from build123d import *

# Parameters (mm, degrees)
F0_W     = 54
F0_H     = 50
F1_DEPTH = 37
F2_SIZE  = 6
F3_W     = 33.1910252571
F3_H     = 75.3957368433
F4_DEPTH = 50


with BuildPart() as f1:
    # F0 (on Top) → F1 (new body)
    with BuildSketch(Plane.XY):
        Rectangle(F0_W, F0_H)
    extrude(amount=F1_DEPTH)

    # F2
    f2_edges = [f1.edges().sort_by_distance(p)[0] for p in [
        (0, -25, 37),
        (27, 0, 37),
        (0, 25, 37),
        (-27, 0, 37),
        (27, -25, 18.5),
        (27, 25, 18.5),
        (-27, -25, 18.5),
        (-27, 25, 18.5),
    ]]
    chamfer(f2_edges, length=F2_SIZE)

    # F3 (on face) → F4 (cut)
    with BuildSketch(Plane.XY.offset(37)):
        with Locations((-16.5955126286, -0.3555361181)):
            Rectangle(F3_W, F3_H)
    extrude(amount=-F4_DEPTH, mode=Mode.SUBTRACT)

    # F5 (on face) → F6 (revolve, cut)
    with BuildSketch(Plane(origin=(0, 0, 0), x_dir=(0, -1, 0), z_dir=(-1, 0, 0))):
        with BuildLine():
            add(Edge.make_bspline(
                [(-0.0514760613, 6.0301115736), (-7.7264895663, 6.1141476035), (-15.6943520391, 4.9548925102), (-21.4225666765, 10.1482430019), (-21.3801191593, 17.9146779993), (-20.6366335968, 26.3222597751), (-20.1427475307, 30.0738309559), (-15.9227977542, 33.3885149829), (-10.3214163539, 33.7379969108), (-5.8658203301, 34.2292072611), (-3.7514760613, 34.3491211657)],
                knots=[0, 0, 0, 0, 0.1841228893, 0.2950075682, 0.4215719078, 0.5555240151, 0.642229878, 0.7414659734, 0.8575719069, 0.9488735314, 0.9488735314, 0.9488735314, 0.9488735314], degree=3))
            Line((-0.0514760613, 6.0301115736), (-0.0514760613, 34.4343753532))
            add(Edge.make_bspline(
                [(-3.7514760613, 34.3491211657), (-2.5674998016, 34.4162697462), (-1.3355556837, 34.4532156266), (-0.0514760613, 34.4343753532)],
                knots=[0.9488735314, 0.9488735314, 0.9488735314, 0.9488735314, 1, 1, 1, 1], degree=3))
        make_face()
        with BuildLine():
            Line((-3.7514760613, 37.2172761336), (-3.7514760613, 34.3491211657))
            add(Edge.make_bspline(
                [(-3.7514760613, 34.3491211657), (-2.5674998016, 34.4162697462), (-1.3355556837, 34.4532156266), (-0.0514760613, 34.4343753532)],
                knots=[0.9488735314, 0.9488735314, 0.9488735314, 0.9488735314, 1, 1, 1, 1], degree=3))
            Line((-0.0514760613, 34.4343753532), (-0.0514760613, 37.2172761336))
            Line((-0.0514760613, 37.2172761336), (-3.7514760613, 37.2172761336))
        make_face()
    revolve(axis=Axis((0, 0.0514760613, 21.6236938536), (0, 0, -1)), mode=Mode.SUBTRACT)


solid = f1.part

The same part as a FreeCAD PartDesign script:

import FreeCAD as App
import Part
import Sketcher
Q = App.Units.Quantity


def edges_at(feature, points):
    """Names of the edges that pass closest to the given points."""
    edges = feature.Shape.Edges
    near = lambda p: min(range(len(edges)), key=lambda i: edges[i].distToShape(Part.Vertex(*p))[0])
    return sorted({f"Edge{near(p) + 1}" for p in points})

doc = App.newDocument("Part")
body = doc.addObject("PartDesign::Body", "Body")

# Sketch on XY plane
sketch1 = body.newObject("Sketcher::SketchObject", "Sketch")
sketch1.AttachmentSupport = (doc.getObject("XY_Plane"), [""])
sketch1.MapMode = "FlatFace"
sketch1.addGeometry(Part.LineSegment(App.Vector(-27, 25, 0), App.Vector(-27, -25, 0)), False)
sketch1.addGeometry(Part.LineSegment(App.Vector(-27, -25, 0), App.Vector(27, -25, 0)), False)
sketch1.addGeometry(Part.LineSegment(App.Vector(27, -25, 0), App.Vector(27, 25, 0)), False)
sketch1.addGeometry(Part.LineSegment(App.Vector(27, 25, 0), App.Vector(-27, 25, 0)), False)
sketch1.addConstraint(Sketcher.Constraint("Coincident", 0, 2, 1, 1))
sketch1.addConstraint(Sketcher.Constraint("Coincident", 1, 2, 2, 1))
sketch1.addConstraint(Sketcher.Constraint("Coincident", 2, 2, 3, 1))
sketch1.addConstraint(Sketcher.Constraint("Coincident", 3, 2, 0, 1))
sketch1.addConstraint(Sketcher.Constraint("Vertical", 0))
sketch1.addConstraint(Sketcher.Constraint("Horizontal", 1))
sketch1.addConstraint(Sketcher.Constraint("Vertical", 2))
sketch1.addConstraint(Sketcher.Constraint("Horizontal", 3))
sketch1.addConstraint(Sketcher.Constraint("Symmetric", 0, 2, 2, 2, -1, 1))
sketch1.addConstraint(Sketcher.Constraint("DistanceX", 1, 1, 1, 2, Q("54 mm")))
sketch1.addConstraint(Sketcher.Constraint("DistanceY", 0, 2, 0, 1, Q("50 mm")))
pad1 = body.newObject("PartDesign::Pad", "Pad")
pad1.Profile = sketch1
pad1.Length = 37
doc.recompute()

chamfer = body.newObject("PartDesign::Chamfer", "Chamfer")
chamfer.Base = (pad1, edges_at(pad1, [
    (0, -25, 37),
    (27, 0, 37),
    (0, 25, 37),
    (-27, 0, 37),
    (27, -25, 18.5),
    (27, 25, 18.5),
    (-27, -25, 18.5),
    (-27, 25, 18.5),
]))
chamfer.Size = 6

# Sketch on XY plane
sketch2 = body.newObject("Sketcher::SketchObject", "Sketch001")
sketch2.AttachmentSupport = (doc.getObject("XY_Plane"), [""])
sketch2.MapMode = "FlatFace"
sketch2.AttachmentOffset = App.Placement(App.Vector(0, 0, 37), App.Rotation())
sketch2.addGeometry(Part.LineSegment(App.Vector(-33, 37, 0), App.Vector(-33, -38, 0)), False)
sketch2.addGeometry(Part.LineSegment(App.Vector(-33, -38, 0), App.Vector(0, -38, 0)), False)
sketch2.addGeometry(Part.LineSegment(App.Vector(0, -38, 0), App.Vector(0, 37, 0)), False)
sketch2.addGeometry(Part.LineSegment(App.Vector(0, 37, 0), App.Vector(-33, 37, 0)), False)
sketch2.addConstraint(Sketcher.Constraint("Coincident", 0, 2, 1, 1))
sketch2.addConstraint(Sketcher.Constraint("Coincident", 1, 2, 2, 1))
sketch2.addConstraint(Sketcher.Constraint("Coincident", 2, 2, 3, 1))
sketch2.addConstraint(Sketcher.Constraint("Coincident", 3, 2, 0, 1))
sketch2.addConstraint(Sketcher.Constraint("Vertical", 0))
sketch2.addConstraint(Sketcher.Constraint("Horizontal", 1))
sketch2.addConstraint(Sketcher.Constraint("Vertical", 2))
sketch2.addConstraint(Sketcher.Constraint("Horizontal", 3))
sketch2.addConstraint(Sketcher.Constraint("PointOnObject", 1, 2, -2))
sketch2.addConstraint(Sketcher.Constraint("DistanceX", 1, 1, 1, 2, Q("33.191025 mm")))
sketch2.addConstraint(Sketcher.Constraint("DistanceY", 0, 2, 0, 1, Q("75.395737 mm")))
sketch2.addConstraint(Sketcher.Constraint("DistanceY", 0, 2, -1, 1, Q("38.053405 mm")))
pocket1 = body.newObject("PartDesign::Pocket", "Pocket")
pocket1.Profile = sketch2
pocket1.Length = 50

# Sketch on YZ plane
sketch3 = body.newObject("Sketcher::SketchObject", "Sketch002")
sketch3.AttachmentSupport = (doc.getObject("YZ_Plane"), [""])
sketch3.MapMode = "FlatFace"
sketch3.addGeometry(Part.BSplineCurve([App.Vector(0.051476, 6.030112, 0), App.Vector(7.72649, 6.114148, 0), App.Vector(15.694352, 4.954893, 0), App.Vector(21.422567, 10.148243, 0), App.Vector(21.380119, 17.914678, 0), App.Vector(20.636634, 26.32226, 0), App.Vector(20.142748, 30.073831, 0), App.Vector(15.922798, 33.388515, 0), App.Vector(10.321416, 33.737997, 0), App.Vector(5.86582, 34.229207, 0), App.Vector(3.751476, 34.349121, 0)], [4, 1, 1, 1, 1, 1, 1, 1, 4], [0, 0.184122889, 0.295007568, 0.421571908, 0.555524015, 0.642229878, 0.741465973, 0.857571907, 0.948873531], False, 3, [1, 1, 1, 1, 1, 1, 1, 1, 1, 1, 1], False), False)
sketch3.addGeometry(Part.LineSegment(App.Vector(0.051476, 6.030112, 0), App.Vector(0.051476, 37.217276, 0)), False)
sketch3.addGeometry(Part.LineSegment(App.Vector(0.051476, 37.217276, 0), App.Vector(3.751476, 37.217276, 0)), False)
sketch3.addGeometry(Part.LineSegment(App.Vector(3.751476, 37.217276, 0), App.Vector(3.751476, 34.349121, 0)), False)
sketch3.addGeometry(Part.LineSegment(App.Vector(0.051476, 37.217276, 0), App.Vector(0.051476, 6.030112, 0)), True)  # axis
sketch3.addConstraint(Sketcher.Constraint("Block", 0))
sketch3.addConstraint(Sketcher.Constraint("Coincident", 0, 1, 1, 1))
sketch3.addConstraint(Sketcher.Constraint("Coincident", 1, 2, 2, 1))
sketch3.addConstraint(Sketcher.Constraint("Coincident", 2, 2, 3, 1))
sketch3.addConstraint(Sketcher.Constraint("Coincident", 3, 2, 0, 2))
sketch3.addConstraint(Sketcher.Constraint("Vertical", 1))
sketch3.addConstraint(Sketcher.Constraint("Horizontal", 2))
sketch3.addConstraint(Sketcher.Constraint("Vertical", 3))
sketch3.addConstraint(Sketcher.Constraint("Vertical", 4))
sketch3.addConstraint(Sketcher.Constraint("Coincident", 4, 1, 1, 2))
sketch3.addConstraint(Sketcher.Constraint("Equal", 1, 4))
sketch3.addConstraint(Sketcher.Constraint("DistanceY", 1, 1, 1, 2, Q("31.187165 mm")))
groove = body.newObject("PartDesign::Groove", "Groove")
groove.Profile = sketch3
groove.ReferenceAxis = (sketch3, ["Axis0"])
groove.Angle = 360

doc.recompute()
